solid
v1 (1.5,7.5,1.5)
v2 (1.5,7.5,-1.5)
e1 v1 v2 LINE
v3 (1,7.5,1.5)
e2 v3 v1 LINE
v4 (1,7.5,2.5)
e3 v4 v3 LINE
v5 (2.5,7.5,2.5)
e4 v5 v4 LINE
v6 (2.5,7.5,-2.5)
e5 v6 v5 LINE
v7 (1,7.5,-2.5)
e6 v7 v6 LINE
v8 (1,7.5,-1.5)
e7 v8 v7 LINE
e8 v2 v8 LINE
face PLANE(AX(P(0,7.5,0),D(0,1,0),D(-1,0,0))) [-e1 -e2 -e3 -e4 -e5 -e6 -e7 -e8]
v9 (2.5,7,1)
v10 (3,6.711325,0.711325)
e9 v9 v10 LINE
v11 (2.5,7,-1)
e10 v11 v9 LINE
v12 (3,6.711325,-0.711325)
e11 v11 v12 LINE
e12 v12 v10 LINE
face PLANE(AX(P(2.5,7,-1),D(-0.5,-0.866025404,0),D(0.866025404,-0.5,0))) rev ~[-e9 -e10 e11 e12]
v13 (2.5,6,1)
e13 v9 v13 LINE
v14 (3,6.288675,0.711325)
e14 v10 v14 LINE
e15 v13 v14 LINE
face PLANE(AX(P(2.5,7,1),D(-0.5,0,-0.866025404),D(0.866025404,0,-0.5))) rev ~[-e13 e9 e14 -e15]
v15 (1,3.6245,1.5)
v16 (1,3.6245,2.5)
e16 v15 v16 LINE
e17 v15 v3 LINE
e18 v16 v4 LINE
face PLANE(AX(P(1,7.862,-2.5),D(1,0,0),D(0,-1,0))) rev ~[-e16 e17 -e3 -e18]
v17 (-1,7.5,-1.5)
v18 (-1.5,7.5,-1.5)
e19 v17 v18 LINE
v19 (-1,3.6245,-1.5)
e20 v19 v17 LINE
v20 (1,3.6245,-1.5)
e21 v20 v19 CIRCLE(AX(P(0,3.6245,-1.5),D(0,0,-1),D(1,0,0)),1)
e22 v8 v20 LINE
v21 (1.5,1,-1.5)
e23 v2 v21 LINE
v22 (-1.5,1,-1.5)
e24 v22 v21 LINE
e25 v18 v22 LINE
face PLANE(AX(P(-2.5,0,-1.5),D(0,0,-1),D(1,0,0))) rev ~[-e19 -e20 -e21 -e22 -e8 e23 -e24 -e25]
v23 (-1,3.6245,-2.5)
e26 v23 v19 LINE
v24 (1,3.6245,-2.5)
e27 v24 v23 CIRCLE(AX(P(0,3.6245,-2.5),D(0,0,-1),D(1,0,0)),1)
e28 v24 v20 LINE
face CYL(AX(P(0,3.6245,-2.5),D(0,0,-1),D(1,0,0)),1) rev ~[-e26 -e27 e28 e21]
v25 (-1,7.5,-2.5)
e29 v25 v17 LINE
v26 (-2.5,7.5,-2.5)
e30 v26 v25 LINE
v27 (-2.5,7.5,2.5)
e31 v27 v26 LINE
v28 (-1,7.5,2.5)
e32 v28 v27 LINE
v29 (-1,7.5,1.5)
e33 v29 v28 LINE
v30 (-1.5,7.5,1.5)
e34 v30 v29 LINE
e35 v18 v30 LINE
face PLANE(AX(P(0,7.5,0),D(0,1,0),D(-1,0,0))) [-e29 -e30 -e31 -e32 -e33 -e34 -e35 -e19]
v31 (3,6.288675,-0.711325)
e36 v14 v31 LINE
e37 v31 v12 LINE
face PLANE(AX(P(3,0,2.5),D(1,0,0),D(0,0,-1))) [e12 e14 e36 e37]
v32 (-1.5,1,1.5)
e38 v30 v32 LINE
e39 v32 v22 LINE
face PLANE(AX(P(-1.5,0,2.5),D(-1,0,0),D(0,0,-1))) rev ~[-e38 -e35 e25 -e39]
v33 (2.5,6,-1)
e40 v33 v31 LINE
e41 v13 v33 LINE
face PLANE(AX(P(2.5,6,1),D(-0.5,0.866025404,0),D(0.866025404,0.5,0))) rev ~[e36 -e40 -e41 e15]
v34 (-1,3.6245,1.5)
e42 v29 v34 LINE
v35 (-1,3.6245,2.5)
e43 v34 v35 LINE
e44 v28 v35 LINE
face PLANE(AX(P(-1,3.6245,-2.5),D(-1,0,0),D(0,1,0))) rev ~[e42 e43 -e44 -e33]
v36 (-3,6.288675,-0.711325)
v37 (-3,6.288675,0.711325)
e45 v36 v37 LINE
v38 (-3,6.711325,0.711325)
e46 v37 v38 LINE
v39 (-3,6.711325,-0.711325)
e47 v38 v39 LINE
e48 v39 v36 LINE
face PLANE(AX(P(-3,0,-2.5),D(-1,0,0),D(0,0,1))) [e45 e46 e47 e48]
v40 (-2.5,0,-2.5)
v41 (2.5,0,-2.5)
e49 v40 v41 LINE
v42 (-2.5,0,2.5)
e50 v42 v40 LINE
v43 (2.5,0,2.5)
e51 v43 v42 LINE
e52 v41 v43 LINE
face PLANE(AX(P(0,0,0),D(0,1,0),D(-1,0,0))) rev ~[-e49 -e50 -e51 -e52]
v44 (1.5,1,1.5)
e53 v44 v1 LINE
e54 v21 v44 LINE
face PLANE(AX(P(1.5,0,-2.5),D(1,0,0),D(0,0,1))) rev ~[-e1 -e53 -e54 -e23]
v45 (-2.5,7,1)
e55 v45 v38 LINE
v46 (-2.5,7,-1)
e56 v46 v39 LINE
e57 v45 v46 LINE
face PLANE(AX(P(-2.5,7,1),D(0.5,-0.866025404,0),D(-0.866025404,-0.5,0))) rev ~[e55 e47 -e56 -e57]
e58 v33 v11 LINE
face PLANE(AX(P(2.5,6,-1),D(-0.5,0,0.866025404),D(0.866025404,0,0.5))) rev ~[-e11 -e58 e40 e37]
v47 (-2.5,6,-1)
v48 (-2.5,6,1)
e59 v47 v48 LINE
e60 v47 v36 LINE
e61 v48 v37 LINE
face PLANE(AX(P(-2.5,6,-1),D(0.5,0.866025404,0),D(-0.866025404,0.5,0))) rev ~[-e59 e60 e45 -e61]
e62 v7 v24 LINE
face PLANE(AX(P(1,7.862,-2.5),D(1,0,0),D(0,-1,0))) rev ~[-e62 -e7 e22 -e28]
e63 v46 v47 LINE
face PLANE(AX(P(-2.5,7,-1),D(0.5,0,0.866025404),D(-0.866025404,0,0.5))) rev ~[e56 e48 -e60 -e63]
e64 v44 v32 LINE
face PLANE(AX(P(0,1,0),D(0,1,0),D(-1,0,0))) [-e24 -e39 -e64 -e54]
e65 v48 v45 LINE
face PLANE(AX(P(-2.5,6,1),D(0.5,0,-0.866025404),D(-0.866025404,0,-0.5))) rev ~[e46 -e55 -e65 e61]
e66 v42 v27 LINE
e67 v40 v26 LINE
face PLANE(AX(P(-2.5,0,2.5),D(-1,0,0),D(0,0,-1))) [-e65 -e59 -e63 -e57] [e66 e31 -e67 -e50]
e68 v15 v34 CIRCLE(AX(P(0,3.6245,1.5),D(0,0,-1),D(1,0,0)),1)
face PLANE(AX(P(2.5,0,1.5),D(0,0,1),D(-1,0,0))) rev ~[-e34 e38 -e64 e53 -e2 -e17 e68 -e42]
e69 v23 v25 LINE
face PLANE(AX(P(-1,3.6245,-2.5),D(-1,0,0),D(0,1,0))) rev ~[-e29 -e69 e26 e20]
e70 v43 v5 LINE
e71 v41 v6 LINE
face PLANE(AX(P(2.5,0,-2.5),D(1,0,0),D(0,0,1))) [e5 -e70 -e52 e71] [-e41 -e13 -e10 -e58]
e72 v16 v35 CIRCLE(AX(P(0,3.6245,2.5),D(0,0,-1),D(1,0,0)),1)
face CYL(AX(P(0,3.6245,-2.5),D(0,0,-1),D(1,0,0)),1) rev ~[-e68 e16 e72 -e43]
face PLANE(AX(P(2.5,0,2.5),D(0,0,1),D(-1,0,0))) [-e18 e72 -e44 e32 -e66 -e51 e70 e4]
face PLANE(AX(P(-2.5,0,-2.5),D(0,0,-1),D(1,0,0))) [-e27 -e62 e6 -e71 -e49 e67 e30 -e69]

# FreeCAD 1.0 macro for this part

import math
import FreeCAD as App
import Part
import Sketcher
from FreeCAD import Vector
Q = App.Units.Quantity


def faces_at(feature, points):
    """Names of the faces that lie closest to the given points."""
    faces = feature.Shape.Faces
    near = lambda p: min(range(len(faces)), key=lambda i: faces[i].distToShape(Part.Vertex(*p))[0])
    return sorted({f"Face{near(p) + 1}" for p in points})

doc = App.newDocument("Part")
body = doc.addObject("PartDesign::Body", "Body")

# Sketch on XZ plane
sketch1 = doc.addObject("Sketcher::SketchObject", "Sketch")
body.addObject(sketch1)
sketch1.AttachmentSupport = (doc.XZ_Plane, [""])
sketch1.MapMode = "FlatFace"
sketch1.addGeometry([
    Part.LineSegment(Vector(-2, 2, 0), Vector(2, 2, 0)),
    Part.LineSegment(Vector(2, 2, 0), Vector(2, -2, 0)),
    Part.LineSegment(Vector(2, -2, 0), Vector(-2, -2, 0)),
    Part.LineSegment(Vector(-2, -2, 0), Vector(-2, 2, 0)),
], False)
sketch1.addConstraint([
    Sketcher.Constraint("Coincident", 0, 2, 1, 1),
    Sketcher.Constraint("Coincident", 1, 2, 2, 1),
    Sketcher.Constraint("Coincident", 2, 2, 3, 1),
    Sketcher.Constraint("Coincident", 3, 2, 0, 1),
    Sketcher.Constraint("Horizontal", 0),
    Sketcher.Constraint("Vertical", 1),
    Sketcher.Constraint("Horizontal", 2),
    Sketcher.Constraint("Vertical", 3),
    Sketcher.Constraint("Symmetric", 0, 2, 2, 2, -1, 1),
    Sketcher.Constraint("Equal", 2, 1),
    Sketcher.Constraint("DistanceX", 0, 1, 0, 2, Q("5 mm")),
])
pad1 = doc.addObject("PartDesign::Pad", "Pad")
body.addObject(pad1)
pad1.Profile = sketch1
pad1.Length = 7.5
pad1.Reversed = True
doc.recompute()

thickness = doc.addObject("PartDesign::Thickness", "Thickness")
body.addObject(thickness)
thickness.Base = (pad1, faces_at(pad1, [(-0.833, 7.5, -0.833)]))
thickness.Value = 1
thickness.Reversed = True
thickness.Join = "Intersection"

# Sketch on YZ plane
sketch2 = doc.addObject("Sketcher::SketchObject", "Sketch001")
body.addObject(sketch2)
sketch2.AttachmentSupport = (doc.YZ_Plane, [""])
sketch2.MapMode = "FlatFace"
sketch2.AttachmentOffset = App.Placement(Vector(0, 0, 2.5), App.Rotation())
sketch2.addGeometry([
    Part.LineSegment(Vector(7, 1, 0), Vector(6, 1, 0)),
    Part.LineSegment(Vector(6, 1, 0), Vector(6, -1, 0)),
    Part.LineSegment(Vector(6, -1, 0), Vector(7, -1, 0)),
    Part.LineSegment(Vector(7, -1, 0), Vector(7, 1, 0)),
], False)
sketch2.addConstraint([
    Sketcher.Constraint("Coincident", 0, 2, 1, 1),
    Sketcher.Constraint("Coincident", 1, 2, 2, 1),
    Sketcher.Constraint("Coincident", 2, 2, 3, 1),
    Sketcher.Constraint("Coincident", 3, 2, 0, 1),
    Sketcher.Constraint("Horizontal", 0),
    Sketcher.Constraint("Vertical", 1),
    Sketcher.Constraint("Horizontal", 2),
    Sketcher.Constraint("Vertical", 3),
    Sketcher.Constraint("DistanceX", 0, 2, 0, 1, Q("1 mm")),
    Sketcher.Constraint("DistanceY", 1, 2, 1, 1, Q("2 mm")),
    Sketcher.Constraint("DistanceY", -1, 1, 0, 2, Q("1 mm")),
    Sketcher.Constraint("DistanceX", -1, 1, 0, 2, Q("6 mm")),
])
pad2 = doc.addObject("PartDesign::Pad", "Pad001")
body.addObject(pad2)
pad2.Profile = sketch2
pad2.Length = 0.5
pad2.TaperAngle = -30

# Sketch on YZ plane
sketch3 = doc.addObject("Sketcher::SketchObject", "Sketch002")
body.addObject(sketch3)
sketch3.AttachmentSupport = (doc.YZ_Plane, [""])
sketch3.MapMode = "FlatFace"
sketch3.AttachmentOffset = App.Placement(Vector(0, 0, -2.5), App.Rotation())
sketch3.addGeometry([
    Part.LineSegment(Vector(7, -1, 0), Vector(6, -1, 0)),
    Part.LineSegment(Vector(6, -1, 0), Vector(6, 1, 0)),
    Part.LineSegment(Vector(6, 1, 0), Vector(7, 1, 0)),
    Part.LineSegment(Vector(7, 1, 0), Vector(7, -1, 0)),
], False)
sketch3.addConstraint([
    Sketcher.Constraint("Coincident", 0, 2, 1, 1),
    Sketcher.Constraint("Coincident", 1, 2, 2, 1),
    Sketcher.Constraint("Coincident", 2, 2, 3, 1),
    Sketcher.Constraint("Coincident", 3, 2, 0, 1),
    Sketcher.Constraint("Horizontal", 0),
    Sketcher.Constraint("Vertical", 1),
    Sketcher.Constraint("Horizontal", 2),
    Sketcher.Constraint("Vertical", 3),
    Sketcher.Constraint("DistanceX", 0, 2, 0, 1, Q("1 mm")),
    Sketcher.Constraint("DistanceY", 1, 1, 1, 2, Q("2 mm")),
    Sketcher.Constraint("DistanceY", 0, 2, -1, 1, Q("1 mm")),
    Sketcher.Constraint("DistanceX", -1, 1, 0, 2, Q("6 mm")),
])
pad3 = doc.addObject("PartDesign::Pad", "Pad002")
body.addObject(pad3)
pad3.Profile = sketch3
pad3.Length = 0.5
pad3.Reversed = True
pad3.TaperAngle = -30

# Sketch on XY plane
sketch4 = doc.addObject("Sketcher::SketchObject", "Sketch003")
body.addObject(sketch4)
sketch4.AttachmentSupport = (doc.XY_Plane, [""])
sketch4.MapMode = "FlatFace"
sketch4.AttachmentOffset = App.Placement(Vector(0, 0, -2.5), App.Rotation())
sketch4.addGeometry([
    Part.ArcOfCircle(Part.Circle(Vector(0, 7.9, 0), Vector(0, 0, 1), 1), math.radians(0), math.radians(180)),
    Part.LineSegment(Vector(1, 7.9, 0), Vector(1, 3.6, 0)),
    Part.ArcOfCircle(Part.Circle(Vector(0, 3.6, 0), Vector(0, 0, 1), 1), math.radians(180), math.radians(360)),
    Part.LineSegment(Vector(-1, 3.6, 0), Vector(-1, 7.9, 0)),
], False)
sketch4.addConstraint([
    Sketcher.Constraint("Tangent", 0, 1, 1, 1),
    Sketcher.Constraint("Tangent", 1, 2, 2, 2),
    Sketcher.Constraint("Tangent", 2, 1, 3, 1),
    Sketcher.Constraint("Tangent", 3, 2, 0, 2),
    Sketcher.Constraint("Vertical", 1),
    Sketcher.Constraint("Vertical", 3),
    Sketcher.Constraint("PointOnObject", 0, 3, -2),
    Sketcher.Constraint("Radius", 0, Q("1 mm")),
    Sketcher.Constraint("DistanceY", 1, 2, 1, 1, Q("4.2375 mm")),
    Sketcher.Constraint("DistanceY", -1, 1, 0, 3, Q("7.862 mm")),
])
pocket1 = doc.addObject("PartDesign::Pocket", "Pocket")
body.addObject(pocket1)
pocket1.Profile = sketch4
pocket1.Type = "ThroughAll"
pocket1.Reversed = True

doc.recompute()
